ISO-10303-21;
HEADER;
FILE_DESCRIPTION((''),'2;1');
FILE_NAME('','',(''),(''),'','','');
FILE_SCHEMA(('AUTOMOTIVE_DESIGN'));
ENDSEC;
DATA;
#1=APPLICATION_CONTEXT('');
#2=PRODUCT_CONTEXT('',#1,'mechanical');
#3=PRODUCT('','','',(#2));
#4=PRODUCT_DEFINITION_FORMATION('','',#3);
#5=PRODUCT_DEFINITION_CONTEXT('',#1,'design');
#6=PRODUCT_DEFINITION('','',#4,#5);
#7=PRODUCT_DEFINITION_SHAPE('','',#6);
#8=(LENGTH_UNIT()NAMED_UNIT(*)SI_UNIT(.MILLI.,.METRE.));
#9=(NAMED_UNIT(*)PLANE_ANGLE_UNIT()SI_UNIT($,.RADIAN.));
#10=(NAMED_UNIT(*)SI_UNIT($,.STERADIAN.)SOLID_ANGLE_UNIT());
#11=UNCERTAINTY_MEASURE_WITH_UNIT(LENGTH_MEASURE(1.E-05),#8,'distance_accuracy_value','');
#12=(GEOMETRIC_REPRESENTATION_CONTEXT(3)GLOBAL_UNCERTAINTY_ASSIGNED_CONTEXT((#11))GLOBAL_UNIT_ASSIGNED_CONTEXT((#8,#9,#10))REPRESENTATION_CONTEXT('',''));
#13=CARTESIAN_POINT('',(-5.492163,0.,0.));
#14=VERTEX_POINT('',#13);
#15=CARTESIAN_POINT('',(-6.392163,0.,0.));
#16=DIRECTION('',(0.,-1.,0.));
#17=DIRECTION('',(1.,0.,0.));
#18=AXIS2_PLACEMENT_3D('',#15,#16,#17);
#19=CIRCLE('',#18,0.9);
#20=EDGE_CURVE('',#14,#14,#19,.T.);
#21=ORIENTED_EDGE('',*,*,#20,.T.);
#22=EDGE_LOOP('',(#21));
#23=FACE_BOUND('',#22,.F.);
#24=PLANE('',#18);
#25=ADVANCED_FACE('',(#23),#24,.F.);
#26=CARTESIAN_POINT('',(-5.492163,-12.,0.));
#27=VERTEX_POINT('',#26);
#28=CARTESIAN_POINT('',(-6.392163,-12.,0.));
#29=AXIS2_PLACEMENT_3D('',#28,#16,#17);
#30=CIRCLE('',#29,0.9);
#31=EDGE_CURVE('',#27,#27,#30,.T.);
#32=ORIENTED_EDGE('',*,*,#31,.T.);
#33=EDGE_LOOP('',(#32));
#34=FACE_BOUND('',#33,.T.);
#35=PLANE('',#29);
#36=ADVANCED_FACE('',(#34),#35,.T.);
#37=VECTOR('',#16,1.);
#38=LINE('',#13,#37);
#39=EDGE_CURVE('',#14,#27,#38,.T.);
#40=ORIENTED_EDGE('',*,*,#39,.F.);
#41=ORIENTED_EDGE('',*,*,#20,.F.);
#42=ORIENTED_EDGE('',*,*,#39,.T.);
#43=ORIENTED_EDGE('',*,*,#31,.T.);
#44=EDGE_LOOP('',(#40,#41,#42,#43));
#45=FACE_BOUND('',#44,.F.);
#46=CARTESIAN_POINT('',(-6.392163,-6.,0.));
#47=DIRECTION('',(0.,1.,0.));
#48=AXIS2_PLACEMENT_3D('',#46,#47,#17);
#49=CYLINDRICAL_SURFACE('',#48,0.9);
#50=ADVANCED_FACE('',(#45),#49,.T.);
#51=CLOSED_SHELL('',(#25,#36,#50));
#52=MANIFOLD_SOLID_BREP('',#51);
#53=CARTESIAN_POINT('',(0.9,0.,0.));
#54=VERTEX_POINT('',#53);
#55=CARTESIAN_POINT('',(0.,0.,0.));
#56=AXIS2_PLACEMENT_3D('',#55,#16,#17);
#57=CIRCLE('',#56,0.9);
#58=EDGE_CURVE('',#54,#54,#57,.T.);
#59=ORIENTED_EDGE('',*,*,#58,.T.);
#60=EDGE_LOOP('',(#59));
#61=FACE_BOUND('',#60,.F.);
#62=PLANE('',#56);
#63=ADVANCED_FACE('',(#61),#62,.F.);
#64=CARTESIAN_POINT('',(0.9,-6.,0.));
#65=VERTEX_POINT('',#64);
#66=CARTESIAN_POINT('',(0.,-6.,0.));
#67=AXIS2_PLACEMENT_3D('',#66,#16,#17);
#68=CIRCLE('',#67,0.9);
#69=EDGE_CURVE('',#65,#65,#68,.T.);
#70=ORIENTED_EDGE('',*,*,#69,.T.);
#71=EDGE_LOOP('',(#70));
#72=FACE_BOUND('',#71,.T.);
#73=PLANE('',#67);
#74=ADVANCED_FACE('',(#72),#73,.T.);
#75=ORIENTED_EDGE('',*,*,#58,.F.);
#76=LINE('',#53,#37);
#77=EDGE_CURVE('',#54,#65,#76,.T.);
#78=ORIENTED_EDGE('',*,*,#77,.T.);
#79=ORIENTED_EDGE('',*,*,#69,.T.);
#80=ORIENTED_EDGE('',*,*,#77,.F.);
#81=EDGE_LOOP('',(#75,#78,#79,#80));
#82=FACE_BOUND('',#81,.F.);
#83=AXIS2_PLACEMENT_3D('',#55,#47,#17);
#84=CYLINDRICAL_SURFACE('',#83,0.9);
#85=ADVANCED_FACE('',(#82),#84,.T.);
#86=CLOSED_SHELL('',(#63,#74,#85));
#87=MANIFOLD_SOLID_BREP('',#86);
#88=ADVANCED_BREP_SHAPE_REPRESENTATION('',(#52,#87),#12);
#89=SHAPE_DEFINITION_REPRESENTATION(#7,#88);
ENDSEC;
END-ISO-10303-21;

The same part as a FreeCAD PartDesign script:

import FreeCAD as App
import Part
import Sketcher
from FreeCAD import Vector

doc = App.newDocument("Part")
params = doc.addObject("Spreadsheet::Sheet", "Params")
for row, (alias, value) in enumerate([
    ("sketch1_diameter", "1.8 mm"),
    ("pad1_length", "6 mm"),
    ("sketch2_diameter", "1.8 mm"),
    ("pad2_length", "6 mm"),
], start=1):
    params.set(f"A{row}", alias)
    params.set(f"B{row}", "=" + value)
    params.setAlias(f"B{row}", alias)

body = doc.addObject("PartDesign::Body", "Body")
body.AllowCompound = True

# Sketch on XZ plane
sketch1 = body.newObject("Sketcher::SketchObject", "Sketch")
sketch1.AttachmentSupport = (doc.getObject("XZ_Plane"), [""])
sketch1.MapMode = "FlatFace"
sketch1.addGeometry([
    Part.Circle(Vector(0, 0, 0), Vector(0, 0, 1), 0.9),
    Part.Circle(Vector(-6.4, 0, 0), Vector(0, 0, 1), 0.9),
], False)
sketch1.addConstraint([
    Sketcher.Constraint("Coincident", 0, 3, -1, 1),
    Sketcher.Constraint("Equal", 0, 1),
    Sketcher.Constraint("PointOnObject", 1, 3, -1),
    Sketcher.Constraint("Diameter", 0, 1.8),
    Sketcher.Constraint("DistanceX", 1, 3, -1, 1, 6.392163),
])
sketch1.setExpression("Constraints[3]", "Params.sketch1_diameter")
pad1 = body.newObject("PartDesign::Pad", "Pad")
pad1.Profile = sketch1
pad1.setExpression("Length", "Params.pad1_length")

# Sketch on XZ plane
sketch2 = body.newObject("Sketcher::SketchObject", "Sketch001")
sketch2.AttachmentSupport = (doc.getObject("XZ_Plane"), [""])
sketch2.MapMode = "FlatFace"
sketch2.AttachmentOffset = App.Placement(Vector(0, 0, 6), App.Rotation())
sketch2.addGeometry(Part.Circle(Vector(-6.4, 0, 0), Vector(0, 0, 1), 0.9), False)
sketch2.addConstraint([
    Sketcher.Constraint("PointOnObject", 0, 3, -1),
    Sketcher.Constraint("Diameter", 0, 1.8),
    Sketcher.Constraint("DistanceX", 0, 3, -1, 1, 6.392163),
])
sketch2.setExpression("Constraints[1]", "Params.sketch2_diameter")
pad2 = body.newObject("PartDesign::Pad", "Pad001")
pad2.Profile = sketch2
pad2.setExpression("Length", "Params.pad2_length")

doc.recompute()
